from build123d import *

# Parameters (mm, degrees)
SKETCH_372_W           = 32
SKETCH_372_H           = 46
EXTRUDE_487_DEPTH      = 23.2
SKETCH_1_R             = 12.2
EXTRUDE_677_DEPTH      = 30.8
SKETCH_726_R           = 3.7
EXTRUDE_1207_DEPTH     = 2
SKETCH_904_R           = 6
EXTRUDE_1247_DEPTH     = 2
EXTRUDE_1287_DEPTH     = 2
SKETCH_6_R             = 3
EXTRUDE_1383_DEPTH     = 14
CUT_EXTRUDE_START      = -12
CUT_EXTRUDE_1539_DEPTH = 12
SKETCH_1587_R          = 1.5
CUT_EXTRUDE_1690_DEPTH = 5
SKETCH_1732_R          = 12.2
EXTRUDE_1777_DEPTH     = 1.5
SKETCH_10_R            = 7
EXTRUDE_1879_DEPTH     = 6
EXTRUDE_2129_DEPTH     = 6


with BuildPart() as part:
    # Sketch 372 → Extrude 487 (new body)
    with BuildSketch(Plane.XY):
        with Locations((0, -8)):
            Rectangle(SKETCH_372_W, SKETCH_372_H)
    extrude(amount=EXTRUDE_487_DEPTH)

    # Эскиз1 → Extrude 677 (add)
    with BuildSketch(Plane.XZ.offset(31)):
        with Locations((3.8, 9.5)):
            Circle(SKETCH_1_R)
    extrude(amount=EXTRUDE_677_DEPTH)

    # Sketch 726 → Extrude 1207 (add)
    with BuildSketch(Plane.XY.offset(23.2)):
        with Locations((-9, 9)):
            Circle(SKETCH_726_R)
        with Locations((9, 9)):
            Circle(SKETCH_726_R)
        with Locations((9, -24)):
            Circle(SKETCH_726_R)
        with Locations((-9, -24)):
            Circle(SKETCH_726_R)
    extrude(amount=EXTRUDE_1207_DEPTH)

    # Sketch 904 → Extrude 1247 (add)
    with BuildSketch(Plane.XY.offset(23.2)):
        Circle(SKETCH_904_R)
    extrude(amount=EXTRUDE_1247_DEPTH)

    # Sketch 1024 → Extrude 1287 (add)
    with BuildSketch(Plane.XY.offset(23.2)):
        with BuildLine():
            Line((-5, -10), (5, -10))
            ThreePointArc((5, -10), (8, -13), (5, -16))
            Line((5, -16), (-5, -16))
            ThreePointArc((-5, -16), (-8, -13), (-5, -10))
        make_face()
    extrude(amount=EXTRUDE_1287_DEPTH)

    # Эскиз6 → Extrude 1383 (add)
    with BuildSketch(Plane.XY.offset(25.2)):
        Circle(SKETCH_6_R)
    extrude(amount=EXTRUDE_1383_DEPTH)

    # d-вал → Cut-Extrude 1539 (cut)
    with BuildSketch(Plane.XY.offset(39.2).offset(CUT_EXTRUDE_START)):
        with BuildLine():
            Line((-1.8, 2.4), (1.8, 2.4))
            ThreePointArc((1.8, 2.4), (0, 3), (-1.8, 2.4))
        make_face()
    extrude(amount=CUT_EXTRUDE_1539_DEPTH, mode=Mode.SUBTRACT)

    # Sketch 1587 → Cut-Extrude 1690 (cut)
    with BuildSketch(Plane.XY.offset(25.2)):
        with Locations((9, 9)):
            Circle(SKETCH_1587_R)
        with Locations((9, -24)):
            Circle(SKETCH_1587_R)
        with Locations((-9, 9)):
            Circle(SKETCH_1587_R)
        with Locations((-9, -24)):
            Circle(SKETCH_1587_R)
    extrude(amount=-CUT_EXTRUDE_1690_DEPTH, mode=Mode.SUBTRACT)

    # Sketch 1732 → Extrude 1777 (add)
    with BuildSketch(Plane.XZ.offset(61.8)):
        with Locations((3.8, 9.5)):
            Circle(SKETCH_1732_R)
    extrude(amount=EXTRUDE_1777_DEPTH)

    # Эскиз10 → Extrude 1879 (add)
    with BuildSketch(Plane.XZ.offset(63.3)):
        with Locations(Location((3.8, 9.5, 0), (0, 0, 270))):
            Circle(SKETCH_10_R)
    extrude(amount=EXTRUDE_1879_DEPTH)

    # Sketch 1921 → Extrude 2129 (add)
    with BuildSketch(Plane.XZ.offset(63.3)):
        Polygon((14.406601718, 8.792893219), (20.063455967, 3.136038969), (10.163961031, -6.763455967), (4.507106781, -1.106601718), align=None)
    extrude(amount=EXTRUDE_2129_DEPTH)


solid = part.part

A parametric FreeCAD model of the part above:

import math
import FreeCAD as App
import Part
import Sketcher

V = App.Vector
Q = App.Units.Quantity


def add_polygon(sketch, points):
    """Adds a closed chain of lines whose ends are joined by coincident constraints."""
    first, n = sketch.GeometryCount, len(points)
    for a, b in zip(points, points[1:] + points[:1]):
        sketch.addGeometry(Part.LineSegment(App.Vector(*a, 0), App.Vector(*b, 0)), False)
    for i in range(n):
        sketch.addConstraint(Sketcher.Constraint("Coincident", first + i, 2, first + (i + 1) % n, 1))

doc = App.newDocument("Part")
body = doc.addObject("PartDesign::Body", "Body")

# Sketch on XY plane
sketch1 = body.newObject("Sketcher::SketchObject", "Sketch")
sketch1.AttachmentSupport = (doc.getObject("XY_Plane"), [""])
sketch1.MapMode = "FlatFace"
add_polygon(sketch1, [(-16, 15), (-16, -31), (16, -31), (16, 15)])  # lines 0-3
sketch1.addConstraint([
    Sketcher.Constraint("Vertical", 0),
    Sketcher.Constraint("Horizontal", 1),
    Sketcher.Constraint("Vertical", 2),
    Sketcher.Constraint("Horizontal", 3),
    Sketcher.Constraint("DistanceX", 1, 1, 1, 2, 32.0),
    Sketcher.Constraint("DistanceY", 0, 2, 0, 1, 46.0),
    Sketcher.Constraint("DistanceX", 0, 2, -1, 1, 16.0),
    Sketcher.Constraint("DistanceY", 0, 2, -1, 1, 31.0),
])
pad1 = body.newObject("PartDesign::Pad", "Pad")
pad1.Profile = sketch1
pad1.Length = 23.2

# Sketch on XZ plane
sketch2 = body.newObject("Sketcher::SketchObject", "Sketch001")
sketch2.AttachmentSupport = (doc.getObject("XZ_Plane"), [""])
sketch2.MapMode = "FlatFace"
sketch2.AttachmentOffset = App.Placement(V(0, 0, 31), App.Rotation())
sketch2.addGeometry(Part.Circle(V(4, 10, 0), V(0, 0, 1), 12), False)
sketch2.addConstraint([
    Sketcher.Constraint("Diameter", 0, 24.4),
    Sketcher.Constraint("DistanceX", -1, 1, 0, 3, 3.8),
    Sketcher.Constraint("DistanceY", -1, 1, 0, 3, 9.5),
])
pad2 = body.newObject("PartDesign::Pad", "Pad001")
pad2.Profile = sketch2
pad2.Length = 30.8

# Sketch on XY plane
sketch3 = body.newObject("Sketcher::SketchObject", "Sketch002")
sketch3.AttachmentSupport = (doc.getObject("XY_Plane"), [""])
sketch3.MapMode = "FlatFace"
sketch3.AttachmentOffset = App.Placement(V(0, 0, 23.2), App.Rotation())
sketch3.addGeometry([
    Part.Circle(V(-9, 9, 0), V(0, 0, 1), 3.7),
    Part.Circle(V(9, 9, 0), V(0, 0, 1), 3.7),
    Part.Circle(V(9, -24, 0), V(0, 0, 1), 3.7),
    Part.Circle(V(-9, -24, 0), V(0, 0, 1), 3.7),
], False)
sketch3.addConstraint([
    Sketcher.Constraint("Equal", 0, 1),
    Sketcher.Constraint("Equal", 1, 2),
    Sketcher.Constraint("Equal", 2, 3),
    Sketcher.Constraint("Symmetric", 0, 3, 1, 3, -2),
    Sketcher.Constraint("Symmetric", 2, 3, 3, 3, -2),
    Sketcher.Constraint("Vertical", 1, 3, 2, 3),
    Sketcher.Constraint("Diameter", 0, 7.4),
    Sketcher.Constraint("DistanceX", 0, 3, -1, 1, 9.0),
    Sketcher.Constraint("DistanceY", -1, 1, 0, 3, 9.0),
    Sketcher.Constraint("DistanceY", 2, 3, -1, 1, 24.0),
])
pad3 = body.newObject("PartDesign::Pad", "Pad002")
pad3.Profile = sketch3
pad3.Length = 2

# Sketch on XY plane
sketch4 = body.newObject("Sketcher::SketchObject", "Sketch003")
sketch4.AttachmentSupport = (doc.getObject("XY_Plane"), [""])
sketch4.MapMode = "FlatFace"
sketch4.AttachmentOffset = App.Placement(V(0, 0, 23.2), App.Rotation())
sketch4.addGeometry(Part.Circle(V(0, 0, 0), V(0, 0, 1), 6), False)
sketch4.addConstraint([
    Sketcher.Constraint("Coincident", 0, 3, -1, 1),
    Sketcher.Constraint("Diameter", 0, 12.0),
])
pad4 = body.newObject("PartDesign::Pad", "Pad003")
pad4.Profile = sketch4
pad4.Length = 2

# Sketch on XY plane
sketch5 = body.newObject("Sketcher::SketchObject", "Sketch004")
sketch5.AttachmentSupport = (doc.getObject("XY_Plane"), [""])
sketch5.MapMode = "FlatFace"
sketch5.AttachmentOffset = App.Placement(V(0, 0, 23.2), App.Rotation())
sketch5.addGeometry([
    Part.LineSegment(V(5, -10, 0), V(-5, -10, 0)),
    Part.ArcOfCircle(Part.Circle(V(-5, -13, 0), V(0, 0, 1), 3), math.radians(90), math.radians(270)),
    Part.LineSegment(V(-5, -16, 0), V(5, -16, 0)),
    Part.ArcOfCircle(Part.Circle(V(5, -13, 0), V(0, 0, 1), 3), math.radians(-90), math.radians(90)),
], False)
sketch5.addConstraint([
    Sketcher.Constraint("Tangent", 0, 2, 1, 1),
    Sketcher.Constraint("Tangent", 1, 2, 2, 1),
    Sketcher.Constraint("Tangent", 2, 2, 3, 1),
    Sketcher.Constraint("Tangent", 3, 2, 0, 1),
    Sketcher.Constraint("Horizontal", 0),
    Sketcher.Constraint("Horizontal", 2),
    Sketcher.Constraint("Radius", 1, 3.0),
    Sketcher.Constraint("DistanceX", 0, 2, 0, 1, 10.0),
    Sketcher.Constraint("DistanceX", 1, 3, -1, 1, 5.0),
    Sketcher.Constraint("DistanceY", 1, 3, -1, 1, 13.0),
])
pad5 = body.newObject("PartDesign::Pad", "Pad004")
pad5.Profile = sketch5
pad5.Length = 2

# Sketch on XY plane
sketch6 = body.newObject("Sketcher::SketchObject", "Sketch005")
sketch6.AttachmentSupport = (doc.getObject("XY_Plane"), [""])
sketch6.MapMode = "FlatFace"
sketch6.AttachmentOffset = App.Placement(V(0, 0, 25.2), App.Rotation())
sketch6.addGeometry(Part.Circle(V(0, 0, 0), V(0, 0, 1), 3), False)
sketch6.addConstraint([
    Sketcher.Constraint("Coincident", 0, 3, -1, 1),
    Sketcher.Constraint("Diameter", 0, 6.0),
])
pad6 = body.newObject("PartDesign::Pad", "Pad005")
pad6.Profile = sketch6
pad6.Length = 14

# Sketch on XY plane
sketch7 = body.newObject("Sketcher::SketchObject", "Sketch006")
sketch7.AttachmentSupport = (doc.getObject("XY_Plane"), [""])
sketch7.MapMode = "FlatFace"
sketch7.AttachmentOffset = App.Placement(V(0, 0, 27.2), App.Rotation())
sketch7.addGeometry([
    Part.LineSegment(V(-1.8, 2.4, 0), V(1.8, 2.4, 0)),
    Part.ArcOfCircle(Part.Circle(V(0, 0, 0), V(0, 0, 1), 3), math.radians(53), math.radians(127)),
], False)
sketch7.addConstraint([
    Sketcher.Constraint("Coincident", 0, 1, 1, 2),
    Sketcher.Constraint("Coincident", 1, 1, 0, 2),
    Sketcher.Constraint("Horizontal", 0),
    Sketcher.Constraint("Coincident", 1, 3, -1, 1),
    Sketcher.Constraint("Radius", 1, 3.0),
    Sketcher.Constraint("DistanceX", 0, 1, 0, 2, 3.6),
])
pocket1 = body.newObject("PartDesign::Pocket", "Pocket")
pocket1.Profile = sketch7
pocket1.Length = 12
pocket1.Reversed = True

# Sketch on XY plane
sketch8 = body.newObject("Sketcher::SketchObject", "Sketch007")
sketch8.AttachmentSupport = (doc.getObject("XY_Plane"), [""])
sketch8.MapMode = "FlatFace"
sketch8.AttachmentOffset = App.Placement(V(0, 0, 25.2), App.Rotation())
sketch8.addGeometry([
    Part.Circle(V(9, 9, 0), V(0, 0, 1), 1.5),
    Part.Circle(V(9, -24, 0), V(0, 0, 1), 1.5),
    Part.Circle(V(-9, 9, 0), V(0, 0, 1), 1.5),
    Part.Circle(V(-9, -24, 0), V(0, 0, 1), 1.5),
], False)
sketch8.addConstraint([
    Sketcher.Constraint("Equal", 0, 1),
    Sketcher.Constraint("Equal", 1, 2),
    Sketcher.Constraint("Equal", 2, 3),
    Sketcher.Constraint("Symmetric", 0, 3, 2, 3, -2),
    Sketcher.Constraint("Symmetric", 1, 3, 3, 3, -2),
    Sketcher.Constraint("Vertical", 0, 3, 1, 3),
    Sketcher.Constraint("Diameter", 0, 3.0),
    Sketcher.Constraint("DistanceX", -1, 1, 0, 3, 9.0),
    Sketcher.Constraint("DistanceY", -1, 1, 0, 3, 9.0),
    Sketcher.Constraint("DistanceY", 1, 3, -1, 1, 24.0),
])
pocket2 = body.newObject("PartDesign::Pocket", "Pocket001")
pocket2.Profile = sketch8
pocket2.Length = 5

# Sketch on XZ plane
sketch9 = body.newObject("Sketcher::SketchObject", "Sketch008")
sketch9.AttachmentSupport = (doc.getObject("XZ_Plane"), [""])
sketch9.MapMode = "FlatFace"
sketch9.AttachmentOffset = App.Placement(V(0, 0, 61.8), App.Rotation())
sketch9.addGeometry(Part.Circle(V(4, 10, 0), V(0, 0, 1), 12), False)
sketch9.addConstraint([
    Sketcher.Constraint("Diameter", 0, 24.4),
    Sketcher.Constraint("DistanceX", -1, 1, 0, 3, 3.8),
    Sketcher.Constraint("DistanceY", -1, 1, 0, 3, 9.5),
])
pad7 = body.newObject("PartDesign::Pad", "Pad006")
pad7.Profile = sketch9
pad7.Length = 1.5

# Sketch on XZ plane
sketch10 = body.newObject("Sketcher::SketchObject", "Sketch009")
sketch10.AttachmentSupport = (doc.getObject("XZ_Plane"), [""])
sketch10.MapMode = "FlatFace"
sketch10.AttachmentOffset = App.Placement(V(0, 0, 63.3), App.Rotation())
sketch10.addGeometry(Part.Circle(V(4, 10, 0), V(0, 0, 1), 7), False)
sketch10.addConstraint([
    Sketcher.Constraint("Diameter", 0, 14.0),
    Sketcher.Constraint("DistanceX", -1, 1, 0, 3, 3.8),
    Sketcher.Constraint("DistanceY", -1, 1, 0, 3, 9.5),
])
pad8 = body.newObject("PartDesign::Pad", "Pad007")
pad8.Profile = sketch10
pad8.Length = 6

# Sketch on XZ plane
sketch11 = body.newObject("Sketcher::SketchObject", "Sketch010")
sketch11.AttachmentSupport = (doc.getObject("XZ_Plane"), [""])
sketch11.MapMode = "FlatFace"
sketch11.AttachmentOffset = App.Placement(V(0, 0, 63.3), App.Rotation())
add_polygon(sketch11, [(20, 3), (14, 9), (5, -1), (10, -7)])  # lines 0-3
sketch11.addConstraint([
    Sketcher.Constraint("Perpendicular", 0, 1),
    Sketcher.Constraint("Perpendicular", 1, 2),
    Sketcher.Constraint("Perpendicular", 2, 3),
    Sketcher.Constraint("Angle", 0, Q("135 deg")),
    Sketcher.Constraint("Distance", 0, 8.0),
    Sketcher.Constraint("Distance", 1, 14.0),
    Sketcher.Constraint("DistanceX", -1, 1, 0, 2, 14.406602),
    Sketcher.Constraint("DistanceY", 1, 2, -1, 1, 1.106602),
])
pad9 = body.newObject("PartDesign::Pad", "Pad008")
pad9.Profile = sketch11
pad9.Length = 6

doc.recompute()
